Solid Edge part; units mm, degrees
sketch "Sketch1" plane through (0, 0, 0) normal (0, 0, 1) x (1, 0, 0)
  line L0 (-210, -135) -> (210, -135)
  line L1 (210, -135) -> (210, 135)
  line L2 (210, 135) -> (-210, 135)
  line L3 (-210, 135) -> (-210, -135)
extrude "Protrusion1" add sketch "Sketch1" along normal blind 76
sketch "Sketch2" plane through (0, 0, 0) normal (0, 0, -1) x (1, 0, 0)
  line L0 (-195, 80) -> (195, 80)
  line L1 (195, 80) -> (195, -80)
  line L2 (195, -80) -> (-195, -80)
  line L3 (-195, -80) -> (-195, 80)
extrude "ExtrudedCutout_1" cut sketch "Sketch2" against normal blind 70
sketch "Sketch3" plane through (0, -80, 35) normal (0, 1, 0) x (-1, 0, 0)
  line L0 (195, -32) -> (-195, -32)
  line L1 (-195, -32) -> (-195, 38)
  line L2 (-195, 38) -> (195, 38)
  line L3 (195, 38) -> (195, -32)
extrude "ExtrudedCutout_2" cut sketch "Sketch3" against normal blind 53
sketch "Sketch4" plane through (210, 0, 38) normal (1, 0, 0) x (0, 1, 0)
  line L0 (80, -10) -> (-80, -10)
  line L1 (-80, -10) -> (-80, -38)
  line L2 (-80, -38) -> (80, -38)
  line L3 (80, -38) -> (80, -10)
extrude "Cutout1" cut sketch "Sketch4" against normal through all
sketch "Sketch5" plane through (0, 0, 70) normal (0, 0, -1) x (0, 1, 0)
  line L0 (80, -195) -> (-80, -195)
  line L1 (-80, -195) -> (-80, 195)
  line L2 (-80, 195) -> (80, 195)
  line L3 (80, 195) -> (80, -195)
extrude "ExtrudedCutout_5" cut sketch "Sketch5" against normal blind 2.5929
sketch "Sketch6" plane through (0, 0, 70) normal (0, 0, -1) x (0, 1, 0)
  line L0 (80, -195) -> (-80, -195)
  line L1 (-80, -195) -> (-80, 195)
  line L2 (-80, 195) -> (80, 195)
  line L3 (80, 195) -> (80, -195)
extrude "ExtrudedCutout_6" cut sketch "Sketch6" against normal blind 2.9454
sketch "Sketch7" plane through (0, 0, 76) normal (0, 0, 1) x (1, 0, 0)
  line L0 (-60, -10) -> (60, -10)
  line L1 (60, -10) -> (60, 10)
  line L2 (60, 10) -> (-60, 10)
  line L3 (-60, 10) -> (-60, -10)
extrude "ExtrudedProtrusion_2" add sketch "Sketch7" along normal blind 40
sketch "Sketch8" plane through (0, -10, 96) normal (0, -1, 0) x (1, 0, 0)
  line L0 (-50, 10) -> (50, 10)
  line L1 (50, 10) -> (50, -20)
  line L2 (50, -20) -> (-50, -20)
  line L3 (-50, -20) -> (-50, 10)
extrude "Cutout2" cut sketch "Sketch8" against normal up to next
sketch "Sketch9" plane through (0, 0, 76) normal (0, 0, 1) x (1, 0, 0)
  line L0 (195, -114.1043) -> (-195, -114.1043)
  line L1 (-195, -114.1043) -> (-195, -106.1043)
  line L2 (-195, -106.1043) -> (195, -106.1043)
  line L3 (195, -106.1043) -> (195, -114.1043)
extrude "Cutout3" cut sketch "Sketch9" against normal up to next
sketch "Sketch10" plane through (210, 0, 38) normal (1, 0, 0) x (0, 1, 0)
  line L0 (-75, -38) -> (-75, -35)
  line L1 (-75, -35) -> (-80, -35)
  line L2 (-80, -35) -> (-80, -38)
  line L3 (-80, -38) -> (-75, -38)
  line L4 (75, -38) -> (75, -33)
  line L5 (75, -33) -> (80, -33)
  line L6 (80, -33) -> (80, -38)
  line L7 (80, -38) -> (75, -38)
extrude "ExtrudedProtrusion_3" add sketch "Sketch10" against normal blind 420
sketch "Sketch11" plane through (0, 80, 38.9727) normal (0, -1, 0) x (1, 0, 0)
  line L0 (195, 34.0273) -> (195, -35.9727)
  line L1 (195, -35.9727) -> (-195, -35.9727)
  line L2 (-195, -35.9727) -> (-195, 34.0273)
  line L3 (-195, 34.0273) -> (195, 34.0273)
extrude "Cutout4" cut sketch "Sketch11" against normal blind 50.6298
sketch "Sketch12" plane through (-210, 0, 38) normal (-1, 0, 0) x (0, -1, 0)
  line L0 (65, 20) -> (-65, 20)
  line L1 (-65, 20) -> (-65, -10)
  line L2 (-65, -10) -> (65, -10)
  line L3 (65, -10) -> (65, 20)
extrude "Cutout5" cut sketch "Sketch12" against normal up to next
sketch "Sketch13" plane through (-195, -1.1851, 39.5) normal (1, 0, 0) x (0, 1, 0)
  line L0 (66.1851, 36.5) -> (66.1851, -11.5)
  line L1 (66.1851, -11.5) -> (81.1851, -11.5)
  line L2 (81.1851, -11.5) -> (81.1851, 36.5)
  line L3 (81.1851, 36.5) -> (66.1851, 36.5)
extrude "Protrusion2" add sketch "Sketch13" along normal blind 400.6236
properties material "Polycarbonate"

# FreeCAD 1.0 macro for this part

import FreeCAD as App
import Part
import Sketcher
from FreeCAD import Vector

doc = App.newDocument("Part")
body = doc.addObject("PartDesign::Body", "Body")

# Sketch on XY plane
sketch1 = body.newObject("Sketcher::SketchObject", "Sketch")
sketch1.AttachmentSupport = (doc.getObject("XY_Plane"), [""])
sketch1.MapMode = "FlatFace"
sketch1.addGeometry(Part.LineSegment(Vector(-210, 135, 0), Vector(-210, -135, 0)), False)
sketch1.addGeometry(Part.LineSegment(Vector(-210, -135, 0), Vector(210, -135, 0)), False)
sketch1.addGeometry(Part.LineSegment(Vector(210, -135, 0), Vector(210, 135, 0)), False)
sketch1.addGeometry(Part.LineSegment(Vector(210, 135, 0), Vector(-210, 135, 0)), False)
sketch1.addConstraint(Sketcher.Constraint("Coincident", 0, 2, 1, 1))
sketch1.addConstraint(Sketcher.Constraint("Coincident", 1, 2, 2, 1))
sketch1.addConstraint(Sketcher.Constraint("Coincident", 2, 2, 3, 1))
sketch1.addConstraint(Sketcher.Constraint("Coincident", 3, 2, 0, 1))
sketch1.addConstraint(Sketcher.Constraint("Vertical", 0))
sketch1.addConstraint(Sketcher.Constraint("Horizontal", 1))
sketch1.addConstraint(Sketcher.Constraint("Vertical", 2))
sketch1.addConstraint(Sketcher.Constraint("Horizontal", 3))
sketch1.addConstraint(Sketcher.Constraint("Symmetric", 0, 2, 2, 2, -1, 1))
sketch1.addConstraint(Sketcher.Constraint("DistanceX", 1, 1, 1, 2, 420.0))
sketch1.addConstraint(Sketcher.Constraint("DistanceY", 0, 2, 0, 1, 270.0))
pad1 = body.newObject("PartDesign::Pad", "Pad")
pad1.Profile = sketch1
pad1.Length = 76

# Sketch on XY plane
sketch2 = body.newObject("Sketcher::SketchObject", "Sketch001")
sketch2.AttachmentSupport = (doc.getObject("XY_Plane"), [""])
sketch2.MapMode = "FlatFace"
sketch2.addGeometry(Part.LineSegment(Vector(195, -80, 0), Vector(-195, -80, 0)), False)
sketch2.addGeometry(Part.LineSegment(Vector(-195, -80, 0), Vector(-195, 80, 0)), False)
sketch2.addGeometry(Part.LineSegment(Vector(-195, 80, 0), Vector(195, 80, 0)), False)
sketch2.addGeometry(Part.LineSegment(Vector(195, 80, 0), Vector(195, -80, 0)), False)
sketch2.addConstraint(Sketcher.Constraint("Coincident", 0, 2, 1, 1))
sketch2.addConstraint(Sketcher.Constraint("Coincident", 1, 2, 2, 1))
sketch2.addConstraint(Sketcher.Constraint("Coincident", 2, 2, 3, 1))
sketch2.addConstraint(Sketcher.Constraint("Coincident", 3, 2, 0, 1))
sketch2.addConstraint(Sketcher.Constraint("Horizontal", 0))
sketch2.addConstraint(Sketcher.Constraint("Vertical", 1))
sketch2.addConstraint(Sketcher.Constraint("Horizontal", 2))
sketch2.addConstraint(Sketcher.Constraint("Vertical", 3))
sketch2.addConstraint(Sketcher.Constraint("Symmetric", 0, 2, 2, 2, -1, 1))
sketch2.addConstraint(Sketcher.Constraint("DistanceX", 0, 2, 0, 1, 390.0))
sketch2.addConstraint(Sketcher.Constraint("DistanceY", 1, 1, 1, 2, 160.0))
pocket1 = body.newObject("PartDesign::Pocket", "Pocket")
pocket1.Profile = sketch2
pocket1.Length = 70
pocket1.Reversed = True

# Sketch on XZ plane
sketch3 = body.newObject("Sketcher::SketchObject", "Sketch002")
sketch3.AttachmentSupport = (doc.getObject("XZ_Plane"), [""])
sketch3.MapMode = "FlatFace"
sketch3.AttachmentOffset = App.Placement(Vector(0, 0, 80), App.Rotation())
sketch3.addGeometry(Part.LineSegment(Vector(195, 3, 0), Vector(-195, 3, 0)), False)
sketch3.addGeometry(Part.LineSegment(Vector(-195, 3, 0), Vector(-195, 73, 0)), False)
sketch3.addGeometry(Part.LineSegment(Vector(-195, 73, 0), Vector(195, 73, 0)), False)
sketch3.addGeometry(Part.LineSegment(Vector(195, 73, 0), Vector(195, 3, 0)), False)
sketch3.addConstraint(Sketcher.Constraint("Coincident", 0, 2, 1, 1))
sketch3.addConstraint(Sketcher.Constraint("Coincident", 1, 2, 2, 1))
sketch3.addConstraint(Sketcher.Constraint("Coincident", 2, 2, 3, 1))
sketch3.addConstraint(Sketcher.Constraint("Coincident", 3, 2, 0, 1))
sketch3.addConstraint(Sketcher.Constraint("Horizontal", 0))
sketch3.addConstraint(Sketcher.Constraint("Vertical", 1))
sketch3.addConstraint(Sketcher.Constraint("Horizontal", 2))
sketch3.addConstraint(Sketcher.Constraint("Vertical", 3))
sketch3.addConstraint(Sketcher.Constraint("DistanceX", 0, 2, 0, 1, 390.0))
sketch3.addConstraint(Sketcher.Constraint("DistanceY", 1, 1, 1, 2, 70.0))
sketch3.addConstraint(Sketcher.Constraint("DistanceX", 0, 2, -1, 1, 195.0))
sketch3.addConstraint(Sketcher.Constraint("DistanceY", -1, 1, 0, 2, 3.0))
pocket2 = body.newObject("PartDesign::Pocket", "Pocket001")
pocket2.Profile = sketch3
pocket2.Length = 53
pocket2.Reversed = True

# Sketch on YZ plane
sketch4 = body.newObject("Sketcher::SketchObject", "Sketch003")
sketch4.AttachmentSupport = (doc.getObject("YZ_Plane"), [""])
sketch4.MapMode = "FlatFace"
sketch4.AttachmentOffset = App.Placement(Vector(0, 0, 210), App.Rotation())
sketch4.addGeometry(Part.LineSegment(Vector(80, 0, 0), Vector(80, 28, 0)), False)
sketch4.addGeometry(Part.LineSegment(Vector(80, 28, 0), Vector(-80, 28, 0)), False)
sketch4.addGeometry(Part.LineSegment(Vector(-80, 28, 0), Vector(-80, 0, 0)), False)
sketch4.addGeometry(Part.LineSegment(Vector(-80, 0, 0), Vector(80, 0, 0)), False)
sketch4.addConstraint(Sketcher.Constraint("Coincident", 0, 2, 1, 1))
sketch4.addConstraint(Sketcher.Constraint("Coincident", 1, 2, 2, 1))
sketch4.addConstraint(Sketcher.Constraint("Coincident", 2, 2, 3, 1))
sketch4.addConstraint(Sketcher.Constraint("Coincident", 3, 2, 0, 1))
sketch4.addConstraint(Sketcher.Constraint("Vertical", 0))
sketch4.addConstraint(Sketcher.Constraint("Horizontal", 1))
sketch4.addConstraint(Sketcher.Constraint("Vertical", 2))
sketch4.addConstraint(Sketcher.Constraint("Horizontal", 3))
sketch4.addConstraint(Sketcher.Constraint("Symmetric", 2, 2, 3, 2, -1, 1))
sketch4.addConstraint(Sketcher.Constraint("DistanceX", 1, 2, 1, 1, 160.0))
sketch4.addConstraint(Sketcher.Constraint("DistanceY", 0, 1, 0, 2, 28.0))
pocket3 = body.newObject("PartDesign::Pocket", "Pocket002")
pocket3.Profile = sketch4
pocket3.Type = "ThroughAll"

# Sketch on XY plane
sketch5 = body.newObject("Sketcher::SketchObject", "Sketch004")
sketch5.AttachmentSupport = (doc.getObject("XY_Plane"), [""])
sketch5.MapMode = "FlatFace"
sketch5.AttachmentOffset = App.Placement(Vector(0, 0, 70), App.Rotation())
sketch5.addGeometry(Part.LineSegment(Vector(-195, -80, 0), Vector(-195, 80, 0)), False)
sketch5.addGeometry(Part.LineSegment(Vector(-195, 80, 0), Vector(195, 80, 0)), False)
sketch5.addGeometry(Part.LineSegment(Vector(195, 80, 0), Vector(195, -80, 0)), False)
sketch5.addGeometry(Part.LineSegment(Vector(195, -80, 0), Vector(-195, -80, 0)), False)
sketch5.addConstraint(Sketcher.Constraint("Coincident", 0, 2, 1, 1))
sketch5.addConstraint(Sketcher.Constraint("Coincident", 1, 2, 2, 1))
sketch5.addConstraint(Sketcher.Constraint("Coincident", 2, 2, 3, 1))
sketch5.addConstraint(Sketcher.Constraint("Coincident", 3, 2, 0, 1))
sketch5.addConstraint(Sketcher.Constraint("Vertical", 0))
sketch5.addConstraint(Sketcher.Constraint("Horizontal", 1))
sketch5.addConstraint(Sketcher.Constraint("Vertical", 2))
sketch5.addConstraint(Sketcher.Constraint("Horizontal", 3))
sketch5.addConstraint(Sketcher.Constraint("Symmetric", 0, 2, 2, 2, -1, 1))
sketch5.addConstraint(Sketcher.Constraint("DistanceX", 1, 1, 1, 2, 390.0))
sketch5.addConstraint(Sketcher.Constraint("DistanceY", 0, 1, 0, 2, 160.0))
pocket4 = body.newObject("PartDesign::Pocket", "Pocket003")
pocket4.Profile = sketch5
pocket4.Length = 2.5929
pocket4.Reversed = True

# Sketch on XY plane
sketch6 = body.newObject("Sketcher::SketchObject", "Sketch005")
sketch6.AttachmentSupport = (doc.getObject("XY_Plane"), [""])
sketch6.MapMode = "FlatFace"
sketch6.AttachmentOffset = App.Placement(Vector(0, 0, 70), App.Rotation())
sketch6.addGeometry(Part.LineSegment(Vector(-195, -80, 0), Vector(-195, 80, 0)), False)
sketch6.addGeometry(Part.LineSegment(Vector(-195, 80, 0), Vector(195, 80, 0)), False)
sketch6.addGeometry(Part.LineSegment(Vector(195, 80, 0), Vector(195, -80, 0)), False)
sketch6.addGeometry(Part.LineSegment(Vector(195, -80, 0), Vector(-195, -80, 0)), False)
sketch6.addConstraint(Sketcher.Constraint("Coincident", 0, 2, 1, 1))
sketch6.addConstraint(Sketcher.Constraint("Coincident", 1, 2, 2, 1))
sketch6.addConstraint(Sketcher.Constraint("Coincident", 2, 2, 3, 1))
sketch6.addConstraint(Sketcher.Constraint("Coincident", 3, 2, 0, 1))
sketch6.addConstraint(Sketcher.Constraint("Vertical", 0))
sketch6.addConstraint(Sketcher.Constraint("Horizontal", 1))
sketch6.addConstraint(Sketcher.Constraint("Vertical", 2))
sketch6.addConstraint(Sketcher.Constraint("Horizontal", 3))
sketch6.addConstraint(Sketcher.Constraint("Symmetric", 0, 2, 2, 2, -1, 1))
sketch6.addConstraint(Sketcher.Constraint("DistanceX", 1, 1, 1, 2, 390.0))
sketch6.addConstraint(Sketcher.Constraint("DistanceY", 0, 1, 0, 2, 160.0))
pocket5 = body.newObject("PartDesign::Pocket", "Pocket004")
pocket5.Profile = sketch6
pocket5.Length = 2.9454
pocket5.Reversed = True

# Sketch on XY plane
sketch7 = body.newObject("Sketcher::SketchObject", "Sketch006")
sketch7.AttachmentSupport = (doc.getObject("XY_Plane"), [""])
sketch7.MapMode = "FlatFace"
sketch7.AttachmentOffset = App.Placement(Vector(0, 0, 76), App.Rotation())
sketch7.addGeometry(Part.LineSegment(Vector(-60, 10, 0), Vector(-60, -10, 0)), False)
sketch7.addGeometry(Part.LineSegment(Vector(-60, -10, 0), Vector(60, -10, 0)), False)
sketch7.addGeometry(Part.LineSegment(Vector(60, -10, 0), Vector(60, 10, 0)), False)
sketch7.addGeometry(Part.LineSegment(Vector(60, 10, 0), Vector(-60, 10, 0)), False)
sketch7.addConstraint(Sketcher.Constraint("Coincident", 0, 2, 1, 1))
sketch7.addConstraint(Sketcher.Constraint("Coincident", 1, 2, 2, 1))
sketch7.addConstraint(Sketcher.Constraint("Coincident", 2, 2, 3, 1))
sketch7.addConstraint(Sketcher.Constraint("Coincident", 3, 2, 0, 1))
sketch7.addConstraint(Sketcher.Constraint("Vertical", 0))
sketch7.addConstraint(Sketcher.Constraint("Horizontal", 1))
sketch7.addConstraint(Sketcher.Constraint("Vertical", 2))
sketch7.addConstraint(Sketcher.Constraint("Horizontal", 3))
sketch7.addConstraint(Sketcher.Constraint("Symmetric", 0, 2, 2, 2, -1, 1))
sketch7.addConstraint(Sketcher.Constraint("DistanceX", 1, 1, 1, 2, 120.0))
sketch7.addConstraint(Sketcher.Constraint("DistanceY", 0, 2, 0, 1, 20.0))
pad2 = body.newObject("PartDesign::Pad", "Pad001")
pad2.Profile = sketch7
pad2.Length = 40

# Sketch on XZ plane
sketch8 = body.newObject("Sketcher::SketchObject", "Sketch007")
sketch8.AttachmentSupport = (doc.getObject("XZ_Plane"), [""])
sketch8.MapMode = "FlatFace"
sketch8.AttachmentOffset = App.Placement(Vector(0, 0, 10), App.Rotation())
sketch8.addGeometry(Part.LineSegment(Vector(50, 106, 0), Vector(-50, 106, 0)), False)
sketch8.addGeometry(Part.LineSegment(Vector(-50, 106, 0), Vector(-50, 76, 0)), False)
sketch8.addGeometry(Part.LineSegment(Vector(-50, 76, 0), Vector(50, 76, 0)), False)
sketch8.addGeometry(Part.LineSegment(Vector(50, 76, 0), Vector(50, 106, 0)), False)
sketch8.addConstraint(Sketcher.Constraint("Coincident", 0, 2, 1, 1))
sketch8.addConstraint(Sketcher.Constraint("Coincident", 1, 2, 2, 1))
sketch8.addConstraint(Sketcher.Constraint("Coincident", 2, 2, 3, 1))
sketch8.addConstraint(Sketcher.Constraint("Coincident", 3, 2, 0, 1))
sketch8.addConstraint(Sketcher.Constraint("Horizontal", 0))
sketch8.addConstraint(Sketcher.Constraint("Vertical", 1))
sketch8.addConstraint(Sketcher.Constraint("Horizontal", 2))
sketch8.addConstraint(Sketcher.Constraint("Vertical", 3))
sketch8.addConstraint(Sketcher.Constraint("DistanceX", 0, 2, 0, 1, 100.0))
sketch8.addConstraint(Sketcher.Constraint("DistanceY", 1, 2, 1, 1, 30.0))
sketch8.addConstraint(Sketcher.Constraint("DistanceX", 0, 2, -1, 1, 50.0))
sketch8.addConstraint(Sketcher.Constraint("DistanceY", -1, 1, 0, 2, 106.0))
pocket6 = body.newObject("PartDesign::Pocket", "Pocket005")
pocket6.Profile = sketch8
pocket6.Type = "UpToFirst"

# Sketch on XY plane
sketch9 = body.newObject("Sketcher::SketchObject", "Sketch008")
sketch9.AttachmentSupport = (doc.getObject("XY_Plane"), [""])
sketch9.MapMode = "FlatFace"
sketch9.AttachmentOffset = App.Placement(Vector(0, 0, 76), App.Rotation())
sketch9.addGeometry(Part.LineSegment(Vector(-195, -114, 0), Vector(195, -114, 0)), False)
sketch9.addGeometry(Part.LineSegment(Vector(195, -114, 0), Vector(195, -106, 0)), False)
sketch9.addGeometry(Part.LineSegment(Vector(195, -106, 0), Vector(-195, -106, 0)), False)
sketch9.addGeometry(Part.LineSegment(Vector(-195, -106, 0), Vector(-195, -114, 0)), False)
sketch9.addConstraint(Sketcher.Constraint("Coincident", 0, 2, 1, 1))
sketch9.addConstraint(Sketcher.Constraint("Coincident", 1, 2, 2, 1))
sketch9.addConstraint(Sketcher.Constraint("Coincident", 2, 2, 3, 1))
sketch9.addConstraint(Sketcher.Constraint("Coincident", 3, 2, 0, 1))
sketch9.addConstraint(Sketcher.Constraint("Horizontal", 0))
sketch9.addConstraint(Sketcher.Constraint("Vertical", 1))
sketch9.addConstraint(Sketcher.Constraint("Horizontal", 2))
sketch9.addConstraint(Sketcher.Constraint("Vertical", 3))
sketch9.addConstraint(Sketcher.Constraint("DistanceX", 0, 1, 0, 2, 390.0))
sketch9.addConstraint(Sketcher.Constraint("DistanceY", 1, 1, 1, 2, 8.0))
sketch9.addConstraint(Sketcher.Constraint("DistanceX", -1, 1, 0, 2, 195.0))
sketch9.addConstraint(Sketcher.Constraint("DistanceY", 0, 2, -1, 1, 114.1043))
pocket7 = body.newObject("PartDesign::Pocket", "Pocket006")
pocket7.Profile = sketch9
pocket7.Type = "UpToFirst"

# Sketch on YZ plane
sketch10 = body.newObject("Sketcher::SketchObject", "Sketch009")
sketch10.AttachmentSupport = (doc.getObject("YZ_Plane"), [""])
sketch10.MapMode = "FlatFace"
sketch10.AttachmentOffset = App.Placement(Vector(0, 0, 210), App.Rotation())
sketch10.addGeometry(Part.LineSegment(Vector(-80, 0, 0), Vector(-75, 0, 0)), False)
sketch10.addGeometry(Part.LineSegment(Vector(-75, 0, 0), Vector(-75, 3, 0)), False)
sketch10.addGeometry(Part.LineSegment(Vector(-75, 3, 0), Vector(-80, 3, 0)), False)
sketch10.addGeometry(Part.LineSegment(Vector(-80, 3, 0), Vector(-80, 0, 0)), False)
sketch10.addGeometry(Part.LineSegment(Vector(75, 5, 0), Vector(75, 0, 0)), False)
sketch10.addGeometry(Part.LineSegment(Vector(75, 0, 0), Vector(80, 0, 0)), False)
sketch10.addGeometry(Part.LineSegment(Vector(80, 0, 0), Vector(80, 5, 0)), False)
sketch10.addGeometry(Part.LineSegment(Vector(80, 5, 0), Vector(75, 5, 0)), False)
sketch10.addConstraint(Sketcher.Constraint("Coincident", 0, 2, 1, 1))
sketch10.addConstraint(Sketcher.Constraint("Coincident", 1, 2, 2, 1))
sketch10.addConstraint(Sketcher.Constraint("Coincident", 2, 2, 3, 1))
sketch10.addConstraint(Sketcher.Constraint("Coincident", 3, 2, 0, 1))
sketch10.addConstraint(Sketcher.Constraint("Coincident", 4, 2, 5, 1))
sketch10.addConstraint(Sketcher.Constraint("Coincident", 5, 2, 6, 1))
sketch10.addConstraint(Sketcher.Constraint("Coincident", 6, 2, 7, 1))
sketch10.addConstraint(Sketcher.Constraint("Coincident", 7, 2, 4, 1))
sketch10.addConstraint(Sketcher.Constraint("Horizontal", 0))
sketch10.addConstraint(Sketcher.Constraint("Vertical", 1))
sketch10.addConstraint(Sketcher.Constraint("Horizontal", 2))
sketch10.addConstraint(Sketcher.Constraint("Vertical", 3))
sketch10.addConstraint(Sketcher.Constraint("Vertical", 4))
sketch10.addConstraint(Sketcher.Constraint("Horizontal", 5))
sketch10.addConstraint(Sketcher.Constraint("Vertical", 6))
sketch10.addConstraint(Sketcher.Constraint("Horizontal", 7))
sketch10.addConstraint(Sketcher.Constraint("Symmetric", 0, 2, 4, 2, -1, 1))
sketch10.addConstraint(Sketcher.Constraint("Symmetric", 3, 2, 5, 2, -2))
sketch10.addConstraint(Sketcher.Constraint("Equal", 7, 4))
sketch10.addConstraint(Sketcher.Constraint("DistanceX", 0, 1, 0, 2, 5.0))
sketch10.addConstraint(Sketcher.Constraint("DistanceY", 1, 1, 1, 2, 3.0))
sketch10.addConstraint(Sketcher.Constraint("DistanceX", 0, 2, -1, 1, 75.0))
pad3 = body.newObject("PartDesign::Pad", "Pad002")
pad3.Profile = sketch10
pad3.Length = 420
pad3.Reversed = True

# Sketch on XZ plane
sketch11 = body.newObject("Sketcher::SketchObject", "Sketch010")
sketch11.AttachmentSupport = (doc.getObject("XZ_Plane"), [""])
sketch11.MapMode = "FlatFace"
sketch11.AttachmentOffset = App.Placement(Vector(0, 0, -80), App.Rotation())
sketch11.addGeometry(Part.LineSegment(Vector(195, 3, 0), Vector(195, 73, 0)), False)
sketch11.addGeometry(Part.LineSegment(Vector(195, 73, 0), Vector(-195, 73, 0)), False)
sketch11.addGeometry(Part.LineSegment(Vector(-195, 73, 0), Vector(-195, 3, 0)), False)
sketch11.addGeometry(Part.LineSegment(Vector(-195, 3, 0), Vector(195, 3, 0)), False)
sketch11.addConstraint(Sketcher.Constraint("Coincident", 0, 2, 1, 1))
sketch11.addConstraint(Sketcher.Constraint("Coincident", 1, 2, 2, 1))
sketch11.addConstraint(Sketcher.Constraint("Coincident", 2, 2, 3, 1))
sketch11.addConstraint(Sketcher.Constraint("Coincident", 3, 2, 0, 1))
sketch11.addConstraint(Sketcher.Constraint("Vertical", 0))
sketch11.addConstraint(Sketcher.Constraint("Horizontal", 1))
sketch11.addConstraint(Sketcher.Constraint("Vertical", 2))
sketch11.addConstraint(Sketcher.Constraint("Horizontal", 3))
sketch11.addConstraint(Sketcher.Constraint("DistanceX", 1, 2, 1, 1, 390.0))
sketch11.addConstraint(Sketcher.Constraint("DistanceY", 0, 1, 0, 2, 70.0))
sketch11.addConstraint(Sketcher.Constraint("DistanceX", -1, 1, 0, 2, 195.0))
sketch11.addConstraint(Sketcher.Constraint("DistanceY", -1, 1, 0, 2, 73.0))
pocket8 = body.newObject("PartDesign::Pocket", "Pocket007")
pocket8.Profile = sketch11
pocket8.Length = 50.6298

# Sketch on YZ plane
sketch12 = body.newObject("Sketcher::SketchObject", "Sketch011")
sketch12.AttachmentSupport = (doc.getObject("YZ_Plane"), [""])
sketch12.MapMode = "FlatFace"
sketch12.AttachmentOffset = App.Placement(Vector(0, 0, -210), App.Rotation())
sketch12.addGeometry(Part.LineSegment(Vector(-65, 28, 0), Vector(-65, 58, 0)), False)
sketch12.addGeometry(Part.LineSegment(Vector(-65, 58, 0), Vector(65, 58, 0)), False)
sketch12.addGeometry(Part.LineSegment(Vector(65, 58, 0), Vector(65, 28, 0)), False)
sketch12.addGeometry(Part.LineSegment(Vector(65, 28, 0), Vector(-65, 28, 0)), False)
sketch12.addConstraint(Sketcher.Constraint("Coincident", 0, 2, 1, 1))
sketch12.addConstraint(Sketcher.Constraint("Coincident", 1, 2, 2, 1))
sketch12.addConstraint(Sketcher.Constraint("Coincident", 2, 2, 3, 1))
sketch12.addConstraint(Sketcher.Constraint("Coincident", 3, 2, 0, 1))
sketch12.addConstraint(Sketcher.Constraint("Vertical", 0))
sketch12.addConstraint(Sketcher.Constraint("Horizontal", 1))
sketch12.addConstraint(Sketcher.Constraint("Vertical", 2))
sketch12.addConstraint(Sketcher.Constraint("Horizontal", 3))
sketch12.addConstraint(Sketcher.Constraint("DistanceX", 1, 1, 1, 2, 130.0))
sketch12.addConstraint(Sketcher.Constraint("DistanceY", 0, 1, 0, 2, 30.0))
sketch12.addConstraint(Sketcher.Constraint("DistanceX", 0, 2, -1, 1, 65.0))
sketch12.addConstraint(Sketcher.Constraint("DistanceY", -1, 1, 0, 2, 58.0))
pocket9 = body.newObject("PartDesign::Pocket", "Pocket008")
pocket9.Profile = sketch12
pocket9.Type = "UpToFirst"
pocket9.Reversed = True

# Sketch on YZ plane
sketch13 = body.newObject("Sketcher::SketchObject", "Sketch012")
sketch13.AttachmentSupport = (doc.getObject("YZ_Plane"), [""])
sketch13.MapMode = "FlatFace"
sketch13.AttachmentOffset = App.Placement(Vector(0, 0, -195), App.Rotation())
sketch13.addGeometry(Part.LineSegment(Vector(80, 76, 0), Vector(65, 76, 0)), False)
sketch13.addGeometry(Part.LineSegment(Vector(65, 76, 0), Vector(65, 28, 0)), False)
sketch13.addGeometry(Part.LineSegment(Vector(65, 28, 0), Vector(80, 28, 0)), False)
sketch13.addGeometry(Part.LineSegment(Vector(80, 28, 0), Vector(80, 76, 0)), False)
sketch13.addConstraint(Sketcher.Constraint("Coincident", 0, 2, 1, 1))
sketch13.addConstraint(Sketcher.Constraint("Coincident", 1, 2, 2, 1))
sketch13.addConstraint(Sketcher.Constraint("Coincident", 2, 2, 3, 1))
sketch13.addConstraint(Sketcher.Constraint("Coincident", 3, 2, 0, 1))
sketch13.addConstraint(Sketcher.Constraint("Horizontal", 0))
sketch13.addConstraint(Sketcher.Constraint("Vertical", 1))
sketch13.addConstraint(Sketcher.Constraint("Horizontal", 2))
sketch13.addConstraint(Sketcher.Constraint("Vertical", 3))
sketch13.addConstraint(Sketcher.Constraint("DistanceX", 0, 2, 0, 1, 15.0))
sketch13.addConstraint(Sketcher.Constraint("DistanceY", 1, 2, 1, 1, 48.0))
sketch13.addConstraint(Sketcher.Constraint("DistanceX", -1, 1, 0, 2, 65.0))
sketch13.addConstraint(Sketcher.Constraint("DistanceY", -1, 1, 0, 2, 76.0))
pad4 = body.newObject("PartDesign::Pad", "Pad003")
pad4.Profile = sketch13
pad4.Length = 400.6236

doc.recompute()
